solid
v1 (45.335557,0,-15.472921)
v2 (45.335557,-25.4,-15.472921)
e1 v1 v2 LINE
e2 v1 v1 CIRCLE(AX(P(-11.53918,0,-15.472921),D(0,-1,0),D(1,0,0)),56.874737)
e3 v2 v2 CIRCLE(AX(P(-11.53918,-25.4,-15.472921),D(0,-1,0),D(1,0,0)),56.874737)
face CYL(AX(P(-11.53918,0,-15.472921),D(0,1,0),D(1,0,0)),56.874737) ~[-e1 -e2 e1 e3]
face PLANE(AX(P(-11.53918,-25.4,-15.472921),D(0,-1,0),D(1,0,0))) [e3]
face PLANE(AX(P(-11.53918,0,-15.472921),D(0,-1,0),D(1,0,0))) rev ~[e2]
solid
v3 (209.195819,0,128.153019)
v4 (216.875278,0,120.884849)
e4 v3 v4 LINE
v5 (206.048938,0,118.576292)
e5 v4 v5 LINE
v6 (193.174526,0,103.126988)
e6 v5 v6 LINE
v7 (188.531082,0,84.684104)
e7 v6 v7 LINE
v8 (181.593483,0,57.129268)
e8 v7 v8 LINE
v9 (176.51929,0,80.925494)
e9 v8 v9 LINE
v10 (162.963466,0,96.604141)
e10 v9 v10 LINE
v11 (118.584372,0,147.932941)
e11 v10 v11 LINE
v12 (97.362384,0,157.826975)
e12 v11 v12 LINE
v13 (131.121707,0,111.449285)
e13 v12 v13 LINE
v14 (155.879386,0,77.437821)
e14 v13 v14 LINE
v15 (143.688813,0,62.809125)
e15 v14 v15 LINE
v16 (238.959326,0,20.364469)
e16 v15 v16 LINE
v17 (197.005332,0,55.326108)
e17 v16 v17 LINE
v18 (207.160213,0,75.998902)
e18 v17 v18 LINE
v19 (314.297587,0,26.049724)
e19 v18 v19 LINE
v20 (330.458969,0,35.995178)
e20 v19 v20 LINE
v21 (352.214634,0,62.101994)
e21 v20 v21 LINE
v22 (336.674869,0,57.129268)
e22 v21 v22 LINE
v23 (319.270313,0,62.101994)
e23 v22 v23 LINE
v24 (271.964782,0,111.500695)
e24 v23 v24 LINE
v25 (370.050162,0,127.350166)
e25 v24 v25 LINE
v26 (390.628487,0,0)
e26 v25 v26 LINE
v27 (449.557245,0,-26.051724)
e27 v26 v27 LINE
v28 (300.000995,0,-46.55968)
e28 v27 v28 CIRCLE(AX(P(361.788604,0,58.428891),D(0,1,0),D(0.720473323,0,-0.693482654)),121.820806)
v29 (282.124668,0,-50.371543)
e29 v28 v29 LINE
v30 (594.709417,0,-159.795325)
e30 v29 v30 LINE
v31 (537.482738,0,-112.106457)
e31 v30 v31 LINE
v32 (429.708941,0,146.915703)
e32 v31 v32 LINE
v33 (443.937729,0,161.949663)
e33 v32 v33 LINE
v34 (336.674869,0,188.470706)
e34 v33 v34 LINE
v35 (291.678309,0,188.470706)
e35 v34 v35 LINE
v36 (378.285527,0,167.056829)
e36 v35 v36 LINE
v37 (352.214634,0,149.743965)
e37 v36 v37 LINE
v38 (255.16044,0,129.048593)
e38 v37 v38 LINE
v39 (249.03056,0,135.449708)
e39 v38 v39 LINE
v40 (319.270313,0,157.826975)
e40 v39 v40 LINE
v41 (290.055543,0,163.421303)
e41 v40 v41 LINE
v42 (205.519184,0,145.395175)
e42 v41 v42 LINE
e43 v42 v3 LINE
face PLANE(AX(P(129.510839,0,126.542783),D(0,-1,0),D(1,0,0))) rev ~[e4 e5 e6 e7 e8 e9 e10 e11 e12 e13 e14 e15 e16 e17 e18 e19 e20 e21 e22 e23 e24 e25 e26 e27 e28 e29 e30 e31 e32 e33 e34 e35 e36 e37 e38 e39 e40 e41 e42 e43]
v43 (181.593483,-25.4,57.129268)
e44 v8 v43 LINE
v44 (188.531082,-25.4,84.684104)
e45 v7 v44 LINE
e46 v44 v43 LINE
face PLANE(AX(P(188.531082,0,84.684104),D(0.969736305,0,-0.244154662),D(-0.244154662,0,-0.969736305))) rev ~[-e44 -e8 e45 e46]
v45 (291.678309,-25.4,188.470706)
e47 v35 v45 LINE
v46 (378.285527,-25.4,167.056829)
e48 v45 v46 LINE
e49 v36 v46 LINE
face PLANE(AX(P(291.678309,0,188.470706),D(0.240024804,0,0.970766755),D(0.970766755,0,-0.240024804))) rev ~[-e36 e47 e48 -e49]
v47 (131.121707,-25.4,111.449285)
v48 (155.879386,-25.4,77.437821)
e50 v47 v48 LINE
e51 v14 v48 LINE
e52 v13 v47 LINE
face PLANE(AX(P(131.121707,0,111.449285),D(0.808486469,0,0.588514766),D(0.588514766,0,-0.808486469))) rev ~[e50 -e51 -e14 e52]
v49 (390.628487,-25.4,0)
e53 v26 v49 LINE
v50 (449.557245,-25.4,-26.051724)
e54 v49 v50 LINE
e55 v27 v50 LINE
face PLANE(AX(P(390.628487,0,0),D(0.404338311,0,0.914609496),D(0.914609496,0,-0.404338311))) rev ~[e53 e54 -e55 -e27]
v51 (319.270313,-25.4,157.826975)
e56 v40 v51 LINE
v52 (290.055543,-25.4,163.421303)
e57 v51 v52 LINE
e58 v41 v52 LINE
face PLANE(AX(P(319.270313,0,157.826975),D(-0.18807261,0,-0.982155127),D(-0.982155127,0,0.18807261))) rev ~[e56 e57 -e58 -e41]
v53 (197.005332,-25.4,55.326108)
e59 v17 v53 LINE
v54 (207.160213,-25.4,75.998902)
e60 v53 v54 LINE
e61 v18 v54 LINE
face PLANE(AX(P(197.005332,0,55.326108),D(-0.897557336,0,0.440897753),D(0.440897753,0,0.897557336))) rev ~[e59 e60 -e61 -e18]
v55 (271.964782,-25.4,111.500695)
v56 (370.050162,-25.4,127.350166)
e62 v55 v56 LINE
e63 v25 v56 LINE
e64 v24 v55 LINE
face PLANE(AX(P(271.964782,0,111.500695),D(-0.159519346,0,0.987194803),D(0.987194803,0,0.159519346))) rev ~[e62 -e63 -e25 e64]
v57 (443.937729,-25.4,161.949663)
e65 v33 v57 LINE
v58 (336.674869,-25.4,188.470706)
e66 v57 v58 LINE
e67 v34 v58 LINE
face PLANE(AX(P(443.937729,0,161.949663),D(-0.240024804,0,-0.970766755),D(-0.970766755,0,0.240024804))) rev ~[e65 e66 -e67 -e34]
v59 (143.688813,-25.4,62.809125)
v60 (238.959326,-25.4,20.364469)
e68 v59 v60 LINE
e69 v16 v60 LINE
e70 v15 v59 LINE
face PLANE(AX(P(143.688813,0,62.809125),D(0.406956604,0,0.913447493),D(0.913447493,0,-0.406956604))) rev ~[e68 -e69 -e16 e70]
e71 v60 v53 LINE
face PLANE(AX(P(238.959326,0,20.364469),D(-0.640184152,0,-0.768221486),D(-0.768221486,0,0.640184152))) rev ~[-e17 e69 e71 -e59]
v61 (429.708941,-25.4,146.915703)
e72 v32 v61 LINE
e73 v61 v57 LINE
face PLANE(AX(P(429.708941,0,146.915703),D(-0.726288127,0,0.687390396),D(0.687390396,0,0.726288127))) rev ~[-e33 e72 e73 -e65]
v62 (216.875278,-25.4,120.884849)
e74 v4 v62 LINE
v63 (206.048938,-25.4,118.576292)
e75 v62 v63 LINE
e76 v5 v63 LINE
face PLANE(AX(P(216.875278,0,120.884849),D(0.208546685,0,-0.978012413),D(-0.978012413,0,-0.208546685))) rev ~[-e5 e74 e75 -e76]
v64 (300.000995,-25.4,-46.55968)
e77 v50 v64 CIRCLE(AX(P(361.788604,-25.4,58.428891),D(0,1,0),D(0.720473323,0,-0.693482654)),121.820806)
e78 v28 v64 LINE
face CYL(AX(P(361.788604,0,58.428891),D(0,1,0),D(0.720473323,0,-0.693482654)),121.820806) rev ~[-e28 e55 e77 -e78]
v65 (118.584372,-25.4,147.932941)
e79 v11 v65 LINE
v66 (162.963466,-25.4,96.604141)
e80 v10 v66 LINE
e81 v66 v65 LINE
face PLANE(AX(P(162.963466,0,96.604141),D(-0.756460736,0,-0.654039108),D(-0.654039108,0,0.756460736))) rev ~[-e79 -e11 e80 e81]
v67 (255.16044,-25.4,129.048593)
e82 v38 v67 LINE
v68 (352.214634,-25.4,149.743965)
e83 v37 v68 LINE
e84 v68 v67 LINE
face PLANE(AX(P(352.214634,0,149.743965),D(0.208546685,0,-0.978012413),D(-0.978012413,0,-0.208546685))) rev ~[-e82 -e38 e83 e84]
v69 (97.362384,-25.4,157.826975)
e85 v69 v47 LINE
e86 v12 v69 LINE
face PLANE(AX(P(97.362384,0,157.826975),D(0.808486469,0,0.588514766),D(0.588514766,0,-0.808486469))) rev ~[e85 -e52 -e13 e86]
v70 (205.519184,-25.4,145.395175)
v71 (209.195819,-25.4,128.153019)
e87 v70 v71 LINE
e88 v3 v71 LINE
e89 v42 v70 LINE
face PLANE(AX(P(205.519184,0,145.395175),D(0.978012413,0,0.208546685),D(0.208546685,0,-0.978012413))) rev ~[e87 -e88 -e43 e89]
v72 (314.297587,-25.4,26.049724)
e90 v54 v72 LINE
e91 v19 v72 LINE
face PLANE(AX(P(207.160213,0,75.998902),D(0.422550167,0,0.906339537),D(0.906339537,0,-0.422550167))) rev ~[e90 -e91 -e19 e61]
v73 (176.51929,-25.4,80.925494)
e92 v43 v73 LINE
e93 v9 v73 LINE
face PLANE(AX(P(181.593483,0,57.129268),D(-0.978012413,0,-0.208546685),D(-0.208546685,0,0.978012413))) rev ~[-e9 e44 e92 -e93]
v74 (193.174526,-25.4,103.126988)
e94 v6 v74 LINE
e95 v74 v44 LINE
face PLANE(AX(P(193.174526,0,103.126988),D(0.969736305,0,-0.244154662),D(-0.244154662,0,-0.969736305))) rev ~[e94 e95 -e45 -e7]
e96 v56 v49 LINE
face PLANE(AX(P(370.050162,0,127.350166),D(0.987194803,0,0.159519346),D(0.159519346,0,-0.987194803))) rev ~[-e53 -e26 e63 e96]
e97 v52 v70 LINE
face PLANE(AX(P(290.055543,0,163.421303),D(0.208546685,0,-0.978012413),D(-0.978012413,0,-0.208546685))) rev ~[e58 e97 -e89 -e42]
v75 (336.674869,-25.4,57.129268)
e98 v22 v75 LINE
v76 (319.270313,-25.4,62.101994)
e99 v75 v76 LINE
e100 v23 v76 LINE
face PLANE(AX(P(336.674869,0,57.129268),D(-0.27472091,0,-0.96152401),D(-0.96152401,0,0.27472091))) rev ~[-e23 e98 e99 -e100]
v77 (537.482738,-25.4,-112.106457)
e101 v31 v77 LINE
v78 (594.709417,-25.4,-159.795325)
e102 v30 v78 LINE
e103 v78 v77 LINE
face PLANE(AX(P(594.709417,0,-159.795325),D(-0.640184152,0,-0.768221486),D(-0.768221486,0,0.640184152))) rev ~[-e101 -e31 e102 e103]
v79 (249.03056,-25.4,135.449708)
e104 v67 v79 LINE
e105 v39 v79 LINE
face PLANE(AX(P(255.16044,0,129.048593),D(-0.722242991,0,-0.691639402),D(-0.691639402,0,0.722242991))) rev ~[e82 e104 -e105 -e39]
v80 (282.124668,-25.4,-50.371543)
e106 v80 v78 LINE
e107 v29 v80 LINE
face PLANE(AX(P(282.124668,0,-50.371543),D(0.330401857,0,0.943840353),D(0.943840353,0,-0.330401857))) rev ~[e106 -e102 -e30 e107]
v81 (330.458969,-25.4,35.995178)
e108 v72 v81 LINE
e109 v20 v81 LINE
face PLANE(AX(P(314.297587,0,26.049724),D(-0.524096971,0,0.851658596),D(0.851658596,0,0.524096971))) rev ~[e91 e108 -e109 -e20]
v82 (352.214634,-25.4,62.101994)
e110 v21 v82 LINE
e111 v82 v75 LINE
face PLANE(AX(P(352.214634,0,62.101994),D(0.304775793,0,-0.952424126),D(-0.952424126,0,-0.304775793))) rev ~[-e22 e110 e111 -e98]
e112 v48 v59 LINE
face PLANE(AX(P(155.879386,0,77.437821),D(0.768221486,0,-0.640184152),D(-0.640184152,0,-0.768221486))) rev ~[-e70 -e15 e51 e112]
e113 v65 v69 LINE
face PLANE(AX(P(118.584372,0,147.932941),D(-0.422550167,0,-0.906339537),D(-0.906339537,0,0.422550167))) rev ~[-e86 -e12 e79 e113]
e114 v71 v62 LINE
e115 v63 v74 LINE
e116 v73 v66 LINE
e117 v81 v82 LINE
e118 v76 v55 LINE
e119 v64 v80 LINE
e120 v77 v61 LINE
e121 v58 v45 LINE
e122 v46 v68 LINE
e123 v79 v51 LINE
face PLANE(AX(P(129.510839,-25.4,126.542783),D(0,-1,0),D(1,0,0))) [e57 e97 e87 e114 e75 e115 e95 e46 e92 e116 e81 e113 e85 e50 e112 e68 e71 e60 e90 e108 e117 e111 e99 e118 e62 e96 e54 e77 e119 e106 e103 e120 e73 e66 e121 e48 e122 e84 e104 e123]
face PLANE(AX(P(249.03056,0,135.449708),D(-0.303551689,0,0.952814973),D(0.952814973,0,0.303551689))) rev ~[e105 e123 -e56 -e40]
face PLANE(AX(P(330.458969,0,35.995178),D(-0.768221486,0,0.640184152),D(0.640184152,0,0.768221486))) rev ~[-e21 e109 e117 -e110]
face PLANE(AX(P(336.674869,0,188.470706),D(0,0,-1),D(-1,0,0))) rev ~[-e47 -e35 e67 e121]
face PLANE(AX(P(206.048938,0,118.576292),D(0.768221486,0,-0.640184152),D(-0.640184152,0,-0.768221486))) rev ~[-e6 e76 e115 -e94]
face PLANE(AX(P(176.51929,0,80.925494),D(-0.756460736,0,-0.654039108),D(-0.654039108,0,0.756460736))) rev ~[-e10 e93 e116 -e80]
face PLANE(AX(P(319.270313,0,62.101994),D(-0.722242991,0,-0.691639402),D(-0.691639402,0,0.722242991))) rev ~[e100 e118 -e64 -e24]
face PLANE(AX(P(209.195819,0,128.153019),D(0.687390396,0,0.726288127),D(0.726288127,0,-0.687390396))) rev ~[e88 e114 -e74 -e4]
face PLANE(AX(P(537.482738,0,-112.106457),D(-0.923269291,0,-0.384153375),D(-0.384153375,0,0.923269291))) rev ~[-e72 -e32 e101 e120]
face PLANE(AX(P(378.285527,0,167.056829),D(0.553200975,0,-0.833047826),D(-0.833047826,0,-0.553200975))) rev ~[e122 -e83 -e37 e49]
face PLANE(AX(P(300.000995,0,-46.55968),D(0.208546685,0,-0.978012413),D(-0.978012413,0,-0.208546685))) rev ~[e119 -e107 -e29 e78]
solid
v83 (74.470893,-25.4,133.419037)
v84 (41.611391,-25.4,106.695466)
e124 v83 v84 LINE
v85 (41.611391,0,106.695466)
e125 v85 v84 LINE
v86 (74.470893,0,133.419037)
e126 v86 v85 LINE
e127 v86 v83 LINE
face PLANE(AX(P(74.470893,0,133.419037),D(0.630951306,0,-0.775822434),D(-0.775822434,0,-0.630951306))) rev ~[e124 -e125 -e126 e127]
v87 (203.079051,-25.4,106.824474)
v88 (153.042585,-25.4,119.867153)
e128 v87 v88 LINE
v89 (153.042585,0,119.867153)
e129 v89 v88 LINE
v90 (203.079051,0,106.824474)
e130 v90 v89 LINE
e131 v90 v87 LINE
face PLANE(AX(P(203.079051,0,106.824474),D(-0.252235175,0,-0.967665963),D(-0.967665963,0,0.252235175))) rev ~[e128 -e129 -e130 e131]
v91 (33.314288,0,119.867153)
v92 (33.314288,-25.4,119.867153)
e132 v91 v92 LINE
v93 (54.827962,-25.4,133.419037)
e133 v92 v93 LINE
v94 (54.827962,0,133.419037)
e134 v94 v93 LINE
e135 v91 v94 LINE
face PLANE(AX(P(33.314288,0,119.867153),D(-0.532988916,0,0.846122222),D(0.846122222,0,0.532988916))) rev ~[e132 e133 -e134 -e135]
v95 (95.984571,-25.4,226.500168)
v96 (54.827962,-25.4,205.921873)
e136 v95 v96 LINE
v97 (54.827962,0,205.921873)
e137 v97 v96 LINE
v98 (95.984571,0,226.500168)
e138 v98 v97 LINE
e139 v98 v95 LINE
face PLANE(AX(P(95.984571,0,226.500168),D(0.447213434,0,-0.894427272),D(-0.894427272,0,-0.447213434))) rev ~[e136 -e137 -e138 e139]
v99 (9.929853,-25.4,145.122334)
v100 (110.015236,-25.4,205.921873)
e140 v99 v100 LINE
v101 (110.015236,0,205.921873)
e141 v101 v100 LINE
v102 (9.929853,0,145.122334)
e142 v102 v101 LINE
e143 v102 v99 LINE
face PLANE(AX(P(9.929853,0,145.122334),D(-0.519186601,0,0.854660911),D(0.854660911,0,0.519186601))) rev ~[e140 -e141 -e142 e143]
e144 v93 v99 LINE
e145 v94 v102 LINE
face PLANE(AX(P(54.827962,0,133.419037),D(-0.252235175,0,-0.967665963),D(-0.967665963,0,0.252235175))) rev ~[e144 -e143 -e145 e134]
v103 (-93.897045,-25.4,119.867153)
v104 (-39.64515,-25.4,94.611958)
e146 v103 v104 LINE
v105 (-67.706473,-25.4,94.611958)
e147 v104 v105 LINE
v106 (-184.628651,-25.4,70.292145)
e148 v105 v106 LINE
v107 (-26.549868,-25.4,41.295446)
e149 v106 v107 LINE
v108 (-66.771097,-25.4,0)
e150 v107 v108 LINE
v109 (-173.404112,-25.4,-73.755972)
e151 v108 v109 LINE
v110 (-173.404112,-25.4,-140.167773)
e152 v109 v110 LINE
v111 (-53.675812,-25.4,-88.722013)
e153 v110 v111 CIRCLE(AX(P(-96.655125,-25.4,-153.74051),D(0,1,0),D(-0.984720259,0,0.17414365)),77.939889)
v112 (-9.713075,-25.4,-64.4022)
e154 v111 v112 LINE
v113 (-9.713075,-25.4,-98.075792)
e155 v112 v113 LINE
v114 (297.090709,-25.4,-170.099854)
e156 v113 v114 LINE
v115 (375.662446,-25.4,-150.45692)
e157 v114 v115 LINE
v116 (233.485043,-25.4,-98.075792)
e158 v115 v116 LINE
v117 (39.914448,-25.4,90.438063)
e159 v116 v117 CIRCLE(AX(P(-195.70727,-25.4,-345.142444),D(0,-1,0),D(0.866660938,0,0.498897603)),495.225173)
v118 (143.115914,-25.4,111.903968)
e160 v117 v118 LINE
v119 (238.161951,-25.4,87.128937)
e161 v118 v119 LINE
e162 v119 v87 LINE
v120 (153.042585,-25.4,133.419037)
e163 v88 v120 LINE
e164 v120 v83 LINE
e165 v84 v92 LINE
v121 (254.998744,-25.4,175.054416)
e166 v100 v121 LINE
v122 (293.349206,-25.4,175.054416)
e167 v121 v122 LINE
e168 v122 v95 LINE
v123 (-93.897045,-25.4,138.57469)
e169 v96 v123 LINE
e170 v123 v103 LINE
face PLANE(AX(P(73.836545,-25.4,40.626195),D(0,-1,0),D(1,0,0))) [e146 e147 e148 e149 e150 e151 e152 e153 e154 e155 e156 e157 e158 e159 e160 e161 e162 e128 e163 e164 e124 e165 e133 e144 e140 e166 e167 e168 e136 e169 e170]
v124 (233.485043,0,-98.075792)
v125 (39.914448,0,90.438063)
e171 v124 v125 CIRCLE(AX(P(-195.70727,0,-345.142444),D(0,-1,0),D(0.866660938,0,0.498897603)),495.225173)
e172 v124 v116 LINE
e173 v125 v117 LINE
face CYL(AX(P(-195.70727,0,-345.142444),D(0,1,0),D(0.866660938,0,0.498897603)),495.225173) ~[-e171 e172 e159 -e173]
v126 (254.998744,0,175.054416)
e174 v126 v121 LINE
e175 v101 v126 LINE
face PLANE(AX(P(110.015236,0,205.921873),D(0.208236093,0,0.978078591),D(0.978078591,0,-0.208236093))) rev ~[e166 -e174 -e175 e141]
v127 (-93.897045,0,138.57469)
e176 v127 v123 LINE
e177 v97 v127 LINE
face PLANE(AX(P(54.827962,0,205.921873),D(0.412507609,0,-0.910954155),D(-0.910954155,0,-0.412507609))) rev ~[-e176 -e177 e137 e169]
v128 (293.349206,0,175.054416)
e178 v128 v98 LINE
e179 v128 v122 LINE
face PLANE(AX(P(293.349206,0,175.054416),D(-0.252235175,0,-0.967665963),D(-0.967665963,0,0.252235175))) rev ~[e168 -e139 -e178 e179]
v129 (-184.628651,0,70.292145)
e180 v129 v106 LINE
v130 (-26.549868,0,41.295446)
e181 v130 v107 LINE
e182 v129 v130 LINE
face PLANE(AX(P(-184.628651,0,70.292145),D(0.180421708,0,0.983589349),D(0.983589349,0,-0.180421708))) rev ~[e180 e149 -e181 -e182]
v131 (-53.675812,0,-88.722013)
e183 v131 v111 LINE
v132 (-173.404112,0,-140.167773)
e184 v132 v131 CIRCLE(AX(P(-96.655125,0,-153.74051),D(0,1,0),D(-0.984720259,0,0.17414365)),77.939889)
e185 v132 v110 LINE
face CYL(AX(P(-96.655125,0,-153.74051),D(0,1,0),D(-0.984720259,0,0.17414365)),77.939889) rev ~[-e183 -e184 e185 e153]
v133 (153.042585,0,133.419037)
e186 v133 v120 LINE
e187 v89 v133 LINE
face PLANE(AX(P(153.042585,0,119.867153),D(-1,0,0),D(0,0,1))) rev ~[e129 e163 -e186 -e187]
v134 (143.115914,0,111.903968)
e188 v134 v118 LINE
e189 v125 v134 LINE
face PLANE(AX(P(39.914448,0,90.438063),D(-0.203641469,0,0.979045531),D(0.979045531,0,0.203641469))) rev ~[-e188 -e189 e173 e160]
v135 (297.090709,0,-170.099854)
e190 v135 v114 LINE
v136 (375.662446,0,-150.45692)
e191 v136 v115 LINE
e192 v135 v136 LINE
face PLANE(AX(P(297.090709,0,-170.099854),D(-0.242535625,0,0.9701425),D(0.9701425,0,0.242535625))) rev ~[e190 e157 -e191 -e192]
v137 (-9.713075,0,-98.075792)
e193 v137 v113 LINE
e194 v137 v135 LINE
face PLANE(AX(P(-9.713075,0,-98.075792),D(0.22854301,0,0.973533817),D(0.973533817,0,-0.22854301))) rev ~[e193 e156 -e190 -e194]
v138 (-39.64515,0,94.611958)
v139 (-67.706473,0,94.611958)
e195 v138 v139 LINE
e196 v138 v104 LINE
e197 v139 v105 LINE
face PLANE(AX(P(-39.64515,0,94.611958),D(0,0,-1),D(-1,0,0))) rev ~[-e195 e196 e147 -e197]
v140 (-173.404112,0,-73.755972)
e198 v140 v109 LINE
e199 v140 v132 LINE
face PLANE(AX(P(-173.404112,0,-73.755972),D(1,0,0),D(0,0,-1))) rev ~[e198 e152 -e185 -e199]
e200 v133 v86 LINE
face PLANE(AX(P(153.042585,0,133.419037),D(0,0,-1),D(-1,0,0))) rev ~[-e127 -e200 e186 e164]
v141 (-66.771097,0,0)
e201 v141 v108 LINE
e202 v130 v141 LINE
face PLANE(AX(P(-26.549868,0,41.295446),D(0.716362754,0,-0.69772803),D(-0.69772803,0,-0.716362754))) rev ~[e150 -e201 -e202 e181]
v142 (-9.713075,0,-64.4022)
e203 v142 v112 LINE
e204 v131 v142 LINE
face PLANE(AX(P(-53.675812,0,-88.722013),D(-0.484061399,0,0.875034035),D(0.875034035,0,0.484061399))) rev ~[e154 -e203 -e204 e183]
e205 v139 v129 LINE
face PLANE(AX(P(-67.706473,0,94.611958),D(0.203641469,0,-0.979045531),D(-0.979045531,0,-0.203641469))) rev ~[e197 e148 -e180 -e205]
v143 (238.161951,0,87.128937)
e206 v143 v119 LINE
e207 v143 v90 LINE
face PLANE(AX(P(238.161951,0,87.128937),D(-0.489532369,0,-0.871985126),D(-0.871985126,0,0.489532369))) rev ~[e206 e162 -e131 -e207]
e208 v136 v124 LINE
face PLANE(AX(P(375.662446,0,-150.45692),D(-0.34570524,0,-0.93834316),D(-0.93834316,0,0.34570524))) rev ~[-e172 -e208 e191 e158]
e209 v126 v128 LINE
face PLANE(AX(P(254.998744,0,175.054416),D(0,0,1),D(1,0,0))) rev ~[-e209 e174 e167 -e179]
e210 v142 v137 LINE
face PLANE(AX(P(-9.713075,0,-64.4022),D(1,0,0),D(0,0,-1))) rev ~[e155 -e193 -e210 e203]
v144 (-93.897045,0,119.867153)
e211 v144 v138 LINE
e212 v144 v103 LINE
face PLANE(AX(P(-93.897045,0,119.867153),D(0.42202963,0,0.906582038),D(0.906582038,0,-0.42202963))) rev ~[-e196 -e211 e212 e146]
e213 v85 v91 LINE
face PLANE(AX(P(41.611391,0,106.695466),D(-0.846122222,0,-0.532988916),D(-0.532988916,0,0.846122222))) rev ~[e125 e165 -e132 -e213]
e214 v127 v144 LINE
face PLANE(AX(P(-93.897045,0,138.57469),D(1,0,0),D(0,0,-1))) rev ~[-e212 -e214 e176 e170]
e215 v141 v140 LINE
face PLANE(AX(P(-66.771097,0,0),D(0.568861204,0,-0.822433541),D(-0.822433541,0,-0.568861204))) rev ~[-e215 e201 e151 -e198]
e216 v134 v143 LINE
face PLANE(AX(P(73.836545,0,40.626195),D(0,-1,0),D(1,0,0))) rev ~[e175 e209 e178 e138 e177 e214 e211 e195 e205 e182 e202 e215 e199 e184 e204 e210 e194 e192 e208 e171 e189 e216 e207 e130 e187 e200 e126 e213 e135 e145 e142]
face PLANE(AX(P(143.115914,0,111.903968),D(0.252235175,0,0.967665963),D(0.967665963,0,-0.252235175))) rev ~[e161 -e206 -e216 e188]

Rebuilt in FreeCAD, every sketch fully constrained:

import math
import FreeCAD as App
import Part
import Sketcher
from FreeCAD import Vector
Q = App.Units.Quantity

doc = App.newDocument("Part")
params = doc.addObject("Spreadsheet::Sheet", "Params")
for row, (alias, value) in enumerate([
    ("pad1_length", "1 in"),
    ("pad2_length", "1 in"),
    ("pad3_length", "1 in"),
], start=1):
    params.set(f"A{row}", alias)
    params.set(f"B{row}", "=" + value)
    params.setAlias(f"B{row}", alias)

body = doc.addObject("PartDesign::Body", "Body")

# Sketch on XZ plane
sketch1 = body.newObject("Sketcher::SketchObject", "Sketch")
sketch1.AttachmentSupport = (doc.getObject("XZ_Plane"), [""])
sketch1.MapMode = "FlatFace"
sketch1.addGeometry(Part.LineSegment(Vector(97, 158, 0), Vector(131, 111, 0)), False)
sketch1.addGeometry(Part.LineSegment(Vector(131, 111, 0), Vector(156, 77, 0)), False)
sketch1.addGeometry(Part.LineSegment(Vector(156, 77, 0), Vector(144, 63, 0)), False)
sketch1.addGeometry(Part.LineSegment(Vector(144, 63, 0), Vector(239, 20, 0)), False)
sketch1.addGeometry(Part.LineSegment(Vector(239, 20, 0), Vector(197, 55, 0)), False)
sketch1.addGeometry(Part.LineSegment(Vector(197, 55, 0), Vector(207, 76, 0)), False)
sketch1.addGeometry(Part.LineSegment(Vector(207, 76, 0), Vector(314, 26, 0)), False)
sketch1.addGeometry(Part.LineSegment(Vector(314, 26, 0), Vector(330, 36, 0)), False)
sketch1.addGeometry(Part.LineSegment(Vector(330, 36, 0), Vector(352, 62, 0)), False)
sketch1.addGeometry(Part.LineSegment(Vector(352, 62, 0), Vector(337, 57, 0)), False)
sketch1.addGeometry(Part.LineSegment(Vector(337, 57, 0), Vector(319, 62, 0)), False)
sketch1.addGeometry(Part.LineSegment(Vector(319, 62, 0), Vector(272, 112, 0)), False)
sketch1.addGeometry(Part.LineSegment(Vector(272, 112, 0), Vector(370, 127, 0)), False)
sketch1.addGeometry(Part.LineSegment(Vector(370, 127, 0), Vector(391, 0, 0)), False)
sketch1.addGeometry(Part.LineSegment(Vector(391, 0, 0), Vector(450, -26, 0)), False)
sketch1.addGeometry(Part.ArcOfCircle(Part.Circle(Vector(362, 58, 0), Vector(0, 0, 1), 122), math.radians(-120), math.radians(-44)), False)
sketch1.addGeometry(Part.LineSegment(Vector(300, -47, 0), Vector(282, -50, 0)), False)
sketch1.addGeometry(Part.LineSegment(Vector(282, -50, 0), Vector(595, -160, 0)), False)
sketch1.addGeometry(Part.LineSegment(Vector(595, -160, 0), Vector(537, -112, 0)), False)
sketch1.addGeometry(Part.LineSegment(Vector(537, -112, 0), Vector(430, 147, 0)), False)
sketch1.addGeometry(Part.LineSegment(Vector(430, 147, 0), Vector(444, 162, 0)), False)
sketch1.addGeometry(Part.LineSegment(Vector(444, 162, 0), Vector(337, 188, 0)), False)
sketch1.addGeometry(Part.LineSegment(Vector(337, 188, 0), Vector(292, 188, 0)), False)
sketch1.addGeometry(Part.LineSegment(Vector(292, 188, 0), Vector(378, 167, 0)), False)
sketch1.addGeometry(Part.LineSegment(Vector(378, 167, 0), Vector(352, 150, 0)), False)
sketch1.addGeometry(Part.LineSegment(Vector(352, 150, 0), Vector(255, 129, 0)), False)
sketch1.addGeometry(Part.LineSegment(Vector(255, 129, 0), Vector(249, 135, 0)), False)
sketch1.addGeometry(Part.LineSegment(Vector(249, 135, 0), Vector(319, 158, 0)), False)
sketch1.addGeometry(Part.LineSegment(Vector(319, 158, 0), Vector(290, 163, 0)), False)
sketch1.addGeometry(Part.LineSegment(Vector(290, 163, 0), Vector(206, 145, 0)), False)
sketch1.addGeometry(Part.LineSegment(Vector(206, 145, 0), Vector(209, 128, 0)), False)
sketch1.addGeometry(Part.LineSegment(Vector(209, 128, 0), Vector(217, 121, 0)), False)
sketch1.addGeometry(Part.LineSegment(Vector(217, 121, 0), Vector(206, 119, 0)), False)
sketch1.addGeometry(Part.LineSegment(Vector(206, 119, 0), Vector(193, 103, 0)), False)
sketch1.addGeometry(Part.LineSegment(Vector(193, 103, 0), Vector(189, 85, 0)), False)
sketch1.addGeometry(Part.LineSegment(Vector(189, 85, 0), Vector(182, 57, 0)), False)
sketch1.addGeometry(Part.LineSegment(Vector(182, 57, 0), Vector(177, 81, 0)), False)
sketch1.addGeometry(Part.LineSegment(Vector(177, 81, 0), Vector(163, 97, 0)), False)
sketch1.addGeometry(Part.LineSegment(Vector(163, 97, 0), Vector(119, 148, 0)), False)
sketch1.addGeometry(Part.LineSegment(Vector(119, 148, 0), Vector(97, 158, 0)), False)
sketch1.addConstraint(Sketcher.Constraint("Coincident", 0, 2, 1, 1))
sketch1.addConstraint(Sketcher.Constraint("Coincident", 1, 2, 2, 1))
sketch1.addConstraint(Sketcher.Constraint("Coincident", 2, 2, 3, 1))
sketch1.addConstraint(Sketcher.Constraint("Coincident", 3, 2, 4, 1))
sketch1.addConstraint(Sketcher.Constraint("Coincident", 4, 2, 5, 1))
sketch1.addConstraint(Sketcher.Constraint("Coincident", 5, 2, 6, 1))
sketch1.addConstraint(Sketcher.Constraint("Coincident", 6, 2, 7, 1))
sketch1.addConstraint(Sketcher.Constraint("Coincident", 7, 2, 8, 1))
sketch1.addConstraint(Sketcher.Constraint("Coincident", 8, 2, 9, 1))
sketch1.addConstraint(Sketcher.Constraint("Coincident", 9, 2, 10, 1))
sketch1.addConstraint(Sketcher.Constraint("Coincident", 10, 2, 11, 1))
sketch1.addConstraint(Sketcher.Constraint("Coincident", 11, 2, 12, 1))
sketch1.addConstraint(Sketcher.Constraint("Coincident", 12, 2, 13, 1))
sketch1.addConstraint(Sketcher.Constraint("Coincident", 13, 2, 14, 1))
sketch1.addConstraint(Sketcher.Constraint("Coincident", 14, 2, 15, 2))
sketch1.addConstraint(Sketcher.Constraint("Coincident", 15, 1, 16, 1))
sketch1.addConstraint(Sketcher.Constraint("Coincident", 16, 2, 17, 1))
sketch1.addConstraint(Sketcher.Constraint("Coincident", 17, 2, 18, 1))
sketch1.addConstraint(Sketcher.Constraint("Coincident", 18, 2, 19, 1))
sketch1.addConstraint(Sketcher.Constraint("Coincident", 19, 2, 20, 1))
sketch1.addConstraint(Sketcher.Constraint("Coincident", 20, 2, 21, 1))
sketch1.addConstraint(Sketcher.Constraint("Coincident", 21, 2, 22, 1))
sketch1.addConstraint(Sketcher.Constraint("Coincident", 22, 2, 23, 1))
sketch1.addConstraint(Sketcher.Constraint("Coincident", 23, 2, 24, 1))
sketch1.addConstraint(Sketcher.Constraint("Coincident", 24, 2, 25, 1))
sketch1.addConstraint(Sketcher.Constraint("Coincident", 25, 2, 26, 1))
sketch1.addConstraint(Sketcher.Constraint("Coincident", 26, 2, 27, 1))
sketch1.addConstraint(Sketcher.Constraint("Coincident", 27, 2, 28, 1))
sketch1.addConstraint(Sketcher.Constraint("Coincident", 28, 2, 29, 1))
sketch1.addConstraint(Sketcher.Constraint("Coincident", 29, 2, 30, 1))
sketch1.addConstraint(Sketcher.Constraint("Coincident", 30, 2, 31, 1))
sketch1.addConstraint(Sketcher.Constraint("Coincident", 31, 2, 32, 1))
sketch1.addConstraint(Sketcher.Constraint("Coincident", 32, 2, 33, 1))
sketch1.addConstraint(Sketcher.Constraint("Coincident", 33, 2, 34, 1))
sketch1.addConstraint(Sketcher.Constraint("Coincident", 34, 2, 35, 1))
sketch1.addConstraint(Sketcher.Constraint("Coincident", 35, 2, 36, 1))
sketch1.addConstraint(Sketcher.Constraint("Coincident", 36, 2, 37, 1))
sketch1.addConstraint(Sketcher.Constraint("Coincident", 37, 2, 38, 1))
sketch1.addConstraint(Sketcher.Constraint("Coincident", 38, 2, 39, 1))
sketch1.addConstraint(Sketcher.Constraint("Coincident", 39, 2, 0, 1))
sketch1.addConstraint(Sketcher.Constraint("Horizontal", 22))
sketch1.addConstraint(Sketcher.Constraint("PointOnObject", 13, 2, -1))
sketch1.addConstraint(Sketcher.Constraint("Parallel", 0, 1))
sketch1.addConstraint(Sketcher.Constraint("Perpendicular", 2, 4))
sketch1.addConstraint(Sketcher.Constraint("Perpendicular", 4, 8))
sketch1.addConstraint(Sketcher.Constraint("Perpendicular", 12, 13))
sketch1.addConstraint(Sketcher.Constraint("Perpendicular", 8, 18))
sketch1.addConstraint(Sketcher.Constraint("Parallel", 21, 23))
sketch1.addConstraint(Sketcher.Constraint("Parallel", 16, 25))
sketch1.addConstraint(Sketcher.Constraint("Parallel", 11, 26))
sketch1.addConstraint(Sketcher.Constraint("Parallel", 25, 29))
sketch1.addConstraint(Sketcher.Constraint("Perpendicular", 29, 30))
sketch1.addConstraint(Sketcher.Constraint("Perpendicular", 20, 31))
sketch1.addConstraint(Sketcher.Constraint("Perpendicular", 30, 32))
sketch1.addConstraint(Sketcher.Constraint("Perpendicular", 18, 33))
sketch1.addConstraint(Sketcher.Constraint("Parallel", 34, 35))
sketch1.addConstraint(Sketcher.Constraint("Perpendicular", 32, 36))
sketch1.addConstraint(Sketcher.Constraint("Parallel", 37, 38))
sketch1.addConstraint(Sketcher.Constraint("Parallel", 6, 39))
sketch1.addConstraint(Sketcher.Constraint("Horizontal", 8, 2, 10, 2))
sketch1.addConstraint(Sketcher.Constraint("Horizontal", 9, 2, 35, 2))
sketch1.addConstraint(Sketcher.Constraint("Horizontal", 27, 2, 39, 2))
sketch1.addConstraint(Sketcher.Constraint("Vertical", 9, 2, 21, 2))
sketch1.addConstraint(Sketcher.Constraint("Vertical", 8, 2, 24, 2))
sketch1.addConstraint(Sketcher.Constraint("Vertical", 10, 2, 27, 2))
sketch1.addConstraint(Sketcher.Constraint("DistanceY", -1, 1, 2, 2, Q("2.4728002 in")))
sketch1.addConstraint(Sketcher.Constraint("Radius", 15, Q("121.820806 mm")))
sketch1.addConstraint(Sketcher.Constraint("DistanceX", 1, 2, 34, 2, Q("1.2854999 in")))
sketch1.addConstraint(Sketcher.Constraint("DistanceX", 22, 2, 22, 1, Q("44.99656 mm")))
sketch1.addConstraint(Sketcher.Constraint("DistanceX", 2, 2, 5, 2, Q("63.4714 mm")))
sketch1.addConstraint(Sketcher.Constraint("DistanceX", 1, 2, 6, 2, Q("158.418201 mm")))
sketch1.addConstraint(Sketcher.Constraint("DistanceX", 7, 2, 9, 2, Q("6.2159 mm")))
sketch1.addConstraint(Sketcher.Constraint("DistanceY", 3, 2, 9, 2, Q("36.764799 mm")))
sketch1.addConstraint(Sketcher.Constraint("DistanceY", 10, 2, 11, 2, Q("49.398701 mm")))
sketch1.addConstraint(Sketcher.Constraint("DistanceY", 9, 2, 12, 2, Q("70.220899 mm")))
sketch1.addConstraint(Sketcher.Constraint("DistanceX", 6, 2, 13, 2, Q("76.3309 mm")))
sketch1.addConstraint(Sketcher.Constraint("DistanceX", 16, 2, 7, 2, Q("48.334301 mm")))
sketch1.addConstraint(Sketcher.Constraint("DistanceY", 17, 2, 14, 2, Q("133.743601 mm")))
sketch1.addConstraint(Sketcher.Constraint("DistanceX", 23, 2, 20, 2, Q("65.652202 mm")))
sketch1.addConstraint(Sketcher.Constraint("DistanceY", 12, 2, 24, 2, Q("22.393799 mm")))
sketch1.addConstraint(Sketcher.Constraint("DistanceY", 11, 2, 25, 2, Q("17.547898 mm")))
sketch1.addConstraint(Sketcher.Constraint("DistanceY", 26, 2, 22, 2, Q("53.020999 mm")))
sketch1.addConstraint(Sketcher.Constraint("DistanceY", 4, 2, 26, 2, Q("80.1236 mm")))
sketch1.addConstraint(Sketcher.Constraint("DistanceX", 35, 2, 34, 2, Q("6.937599 mm")))
sketch1.addConstraint(Sketcher.Constraint("DistanceY", 37, 2, 38, 2, Q("51.3288 mm")))
sketch1.addConstraint(Sketcher.Constraint("DistanceX", 39, 2, 1, 2, Q("58.517001 mm")))
sketch1.addConstraint(Sketcher.Constraint("Distance", 2, Q("19.042291 mm")))
sketch1.addConstraint(Sketcher.Constraint("Distance", 6, Q("118.208871 mm")))
sketch1.addConstraint(Sketcher.Constraint("Distance", 8, Q("33.983449 mm")))
sketch1.addConstraint(Sketcher.Constraint("Distance", 10, Q("18.101011 mm")))
sketch1.addConstraint(Sketcher.Constraint("Distance", 14, Q("64.430512 mm")))
sketch1.addConstraint(Sketcher.Constraint("Distance", 16, Q("18.278221 mm")))
sketch1.addConstraint(Sketcher.Constraint("Distance", 17, Q("331.183921 mm")))
sketch1.addConstraint(Sketcher.Constraint("Distance", 18, Q("74.492422 mm")))
sketch1.addConstraint(Sketcher.Constraint("Distance", 20, Q("20.699719 mm")))
sketch1.addConstraint(Sketcher.Constraint("Distance", 23, Q("89.21527 mm")))
sketch1.addConstraint(Sketcher.Constraint("Distance", 25, Q("99.236158 mm")))
sketch1.addConstraint(Sketcher.Constraint("Distance", 30, Q("17.629792 mm")))
sketch1.addConstraint(Sketcher.Constraint("Distance", 31, Q("10.57357 mm")))
sketch1.addConstraint(Sketcher.Constraint("Distance", 33, Q("20.110482 mm")))
sketch1.addConstraint(Sketcher.Constraint("Distance", 34, Q("19.018452 mm")))
sketch1.addConstraint(Sketcher.Constraint("Distance", 36, Q("24.331211 mm")))
sketch1.addConstraint(Sketcher.Constraint("Distance", 37, Q("20.726319 mm")))
sketch1.addConstraint(Sketcher.Constraint("DistanceY", -1, 1, 15, 3, Q("58.428891 mm")))
sketch1.addConstraint(Sketcher.Constraint("DistanceY", -1, 1, 1, 2, Q("77.437821 mm")))
sketch1.addConstraint(Sketcher.Constraint("DistanceY", -1, 1, 3, 2, Q("20.364469 mm")))
sketch1.addConstraint(Sketcher.Constraint("DistanceX", -1, 1, 4, 2, Q("197.005332 mm")))
sketch1.addConstraint(Sketcher.Constraint("DistanceX", -1, 1, 7, 2, Q("330.458969 mm")))
sketch1.addConstraint(Sketcher.Constraint("DistanceX", -1, 1, 11, 2, Q("271.964782 mm")))
sketch1.addConstraint(Sketcher.Constraint("DistanceY", 15, 1, -1, 1, Q("46.55968 mm")))
sketch1.addConstraint(Sketcher.Constraint("DistanceX", -1, 1, 18, 2, Q("537.482738 mm")))
sketch1.addConstraint(Sketcher.Constraint("DistanceX", -1, 1, 19, 2, Q("429.708941 mm")))
sketch1.addConstraint(Sketcher.Constraint("DistanceX", -1, 1, 20, 2, Q("443.937729 mm")))
sketch1.addConstraint(Sketcher.Constraint("DistanceY", -1, 1, 23, 2, Q("167.056829 mm")))
sketch1.addConstraint(Sketcher.Constraint("DistanceX", -1, 1, 25, 2, Q("255.16044 mm")))
sketch1.addConstraint(Sketcher.Constraint("DistanceX", -1, 1, 30, 2, Q("209.195819 mm")))
sketch1.addConstraint(Sketcher.Constraint("DistanceY", -1, 1, 30, 2, Q("128.153019 mm")))
sketch1.addConstraint(Sketcher.Constraint("DistanceY", -1, 1, 37, 2, Q("96.604141 mm")))
sketch1.addConstraint(Sketcher.Constraint("DistanceX", 0, 2, 1, 2, Q("24.757679 mm")))
sketch1.addConstraint(Sketcher.Constraint("DistanceY", 5, 2, 1, 2, Q("1.438919 mm")))
sketch1.addConstraint(Sketcher.Constraint("DistanceX", 28, 2, 27, 2, Q("29.21477 mm")))
pad1 = body.newObject("PartDesign::Pad", "Pad")
pad1.Profile = sketch1
pad1.setExpression("Length", "Params.pad1_length")
body2 = doc.addObject("PartDesign::Body", "Body001")

# Sketch on XZ plane
sketch2 = body2.newObject("Sketcher::SketchObject", "Sketch001")
sketch2.AttachmentSupport = (doc.getObject("XZ_Plane001"), [""])
sketch2.MapMode = "FlatFace"
sketch2.addGeometry(Part.Circle(Vector(-12, -15, 0), Vector(0, 0, 1), 57), False)
sketch2.addConstraint(Sketcher.Constraint("Diameter", 0, Q("113.749473 mm")))
sketch2.addConstraint(Sketcher.Constraint("DistanceX", 0, 3, -1, 1, Q("11.53918 mm")))
sketch2.addConstraint(Sketcher.Constraint("DistanceY", 0, 3, -1, 1, Q("15.472921 mm")))
pad2 = body2.newObject("PartDesign::Pad", "Pad001")
pad2.Profile = sketch2
pad2.setExpression("Length", "Params.pad2_length")
body3 = doc.addObject("PartDesign::Body", "Body002")

# Sketch on XZ plane
sketch3 = body3.newObject("Sketcher::SketchObject", "Sketch002")
sketch3.AttachmentSupport = (doc.getObject("XZ_Plane002"), [""])
sketch3.MapMode = "FlatFace"
sketch3.addGeometry(Part.LineSegment(Vector(-185, 70, 0), Vector(-27, 41, 0)), False)
sketch3.addGeometry(Part.LineSegment(Vector(-27, 41, 0), Vector(-67, 0, 0)), False)
sketch3.addGeometry(Part.LineSegment(Vector(-67, 0, 0), Vector(-173, -74, 0)), False)
sketch3.addGeometry(Part.LineSegment(Vector(-173, -74, 0), Vector(-173, -140, 0)), False)
sketch3.addGeometry(Part.ArcOfCircle(Part.Circle(Vector(-97, -154, 0), Vector(0, 0, 1), 78), math.radians(57), math.radians(170)), False)
sketch3.addGeometry(Part.LineSegment(Vector(-54, -89, 0), Vector(-10, -64, 0)), False)
sketch3.addGeometry(Part.LineSegment(Vector(-10, -64, 0), Vector(-10, -98, 0)), False)
sketch3.addGeometry(Part.LineSegment(Vector(-10, -98, 0), Vector(297, -170, 0)), False)
sketch3.addGeometry(Part.LineSegment(Vector(297, -170, 0), Vector(376, -150, 0)), False)
sketch3.addGeometry(Part.LineSegment(Vector(376, -150, 0), Vector(233, -98, 0)), False)
sketch3.addGeometry(Part.ArcOfCircle(Part.Circle(Vector(-196, -345, 0), Vector(0, 0, 1), 495), math.radians(30), math.radians(62)), False)
sketch3.addGeometry(Part.LineSegment(Vector(40, 90, 0), Vector(143, 112, 0)), False)
sketch3.addGeometry(Part.LineSegment(Vector(143, 112, 0), Vector(238, 87, 0)), False)
sketch3.addGeometry(Part.LineSegment(Vector(238, 87, 0), Vector(203, 107, 0)), False)
sketch3.addGeometry(Part.LineSegment(Vector(203, 107, 0), Vector(153, 120, 0)), False)
sketch3.addGeometry(Part.LineSegment(Vector(153, 120, 0), Vector(153, 133, 0)), False)
sketch3.addGeometry(Part.LineSegment(Vector(153, 133, 0), Vector(74, 133, 0)), False)
sketch3.addGeometry(Part.LineSegment(Vector(74, 133, 0), Vector(42, 107, 0)), False)
sketch3.addGeometry(Part.LineSegment(Vector(42, 107, 0), Vector(33, 120, 0)), False)
sketch3.addGeometry(Part.LineSegment(Vector(33, 120, 0), Vector(55, 133, 0)), False)
sketch3.addGeometry(Part.LineSegment(Vector(55, 133, 0), Vector(10, 145, 0)), False)
sketch3.addGeometry(Part.LineSegment(Vector(10, 145, 0), Vector(110, 206, 0)), False)
sketch3.addGeometry(Part.LineSegment(Vector(110, 206, 0), Vector(255, 175, 0)), False)
sketch3.addGeometry(Part.LineSegment(Vector(255, 175, 0), Vector(293, 175, 0)), False)
sketch3.addGeometry(Part.LineSegment(Vector(293, 175, 0), Vector(96, 227, 0)), False)
sketch3.addGeometry(Part.LineSegment(Vector(96, 227, 0), Vector(55, 206, 0)), False)
sketch3.addGeometry(Part.LineSegment(Vector(55, 206, 0), Vector(-94, 139, 0)), False)
sketch3.addGeometry(Part.LineSegment(Vector(-94, 139, 0), Vector(-94, 120, 0)), False)
sketch3.addGeometry(Part.LineSegment(Vector(-94, 120, 0), Vector(-40, 95, 0)), False)
sketch3.addGeometry(Part.LineSegment(Vector(-40, 95, 0), Vector(-68, 95, 0)), False)
sketch3.addGeometry(Part.LineSegment(Vector(-68, 95, 0), Vector(-185, 70, 0)), False)
sketch3.addConstraint(Sketcher.Constraint("Coincident", 0, 2, 1, 1))
sketch3.addConstraint(Sketcher.Constraint("Coincident", 1, 2, 2, 1))
sketch3.addConstraint(Sketcher.Constraint("Coincident", 2, 2, 3, 1))
sketch3.addConstraint(Sketcher.Constraint("Coincident", 3, 2, 4, 2))
sketch3.addConstraint(Sketcher.Constraint("Coincident", 4, 1, 5, 1))
sketch3.addConstraint(Sketcher.Constraint("Coincident", 5, 2, 6, 1))
sketch3.addConstraint(Sketcher.Constraint("Coincident", 6, 2, 7, 1))
sketch3.addConstraint(Sketcher.Constraint("Coincident", 7, 2, 8, 1))
sketch3.addConstraint(Sketcher.Constraint("Coincident", 8, 2, 9, 1))
sketch3.addConstraint(Sketcher.Constraint("Coincident", 9, 2, 10, 1))
sketch3.addConstraint(Sketcher.Constraint("Coincident", 10, 2, 11, 1))
sketch3.addConstraint(Sketcher.Constraint("Coincident", 11, 2, 12, 1))
sketch3.addConstraint(Sketcher.Constraint("Coincident", 12, 2, 13, 1))
sketch3.addConstraint(Sketcher.Constraint("Coincident", 13, 2, 14, 1))
sketch3.addConstraint(Sketcher.Constraint("Coincident", 14, 2, 15, 1))
sketch3.addConstraint(Sketcher.Constraint("Coincident", 15, 2, 16, 1))
sketch3.addConstraint(Sketcher.Constraint("Coincident", 16, 2, 17, 1))
sketch3.addConstraint(Sketcher.Constraint("Coincident", 17, 2, 18, 1))
sketch3.addConstraint(Sketcher.Constraint("Coincident", 18, 2, 19, 1))
sketch3.addConstraint(Sketcher.Constraint("Coincident", 19, 2, 20, 1))
sketch3.addConstraint(Sketcher.Constraint("Coincident", 20, 2, 21, 1))
sketch3.addConstraint(Sketcher.Constraint("Coincident", 21, 2, 22, 1))
sketch3.addConstraint(Sketcher.Constraint("Coincident", 22, 2, 23, 1))
sketch3.addConstraint(Sketcher.Constraint("Coincident", 23, 2, 24, 1))
sketch3.addConstraint(Sketcher.Constraint("Coincident", 24, 2, 25, 1))
sketch3.addConstraint(Sketcher.Constraint("Coincident", 25, 2, 26, 1))
sketch3.addConstraint(Sketcher.Constraint("Coincident", 26, 2, 27, 1))
sketch3.addConstraint(Sketcher.Constraint("Coincident", 27, 2, 28, 1))
sketch3.addConstraint(Sketcher.Constraint("Coincident", 28, 2, 29, 1))
sketch3.addConstraint(Sketcher.Constraint("Coincident", 29, 2, 30, 1))
sketch3.addConstraint(Sketcher.Constraint("Coincident", 30, 2, 0, 1))
sketch3.addConstraint(Sketcher.Constraint("Vertical", 3))
sketch3.addConstraint(Sketcher.Constraint("Vertical", 6))
sketch3.addConstraint(Sketcher.Constraint("Vertical", 15))
sketch3.addConstraint(Sketcher.Constraint("Horizontal", 16))
sketch3.addConstraint(Sketcher.Constraint("Horizontal", 23))
sketch3.addConstraint(Sketcher.Constraint("Vertical", 27))
sketch3.addConstraint(Sketcher.Constraint("Horizontal", 29))
sketch3.addConstraint(Sketcher.Constraint("PointOnObject", 1, 2, -1))
sketch3.addConstraint(Sketcher.Constraint("Parallel", 12, 14))
sketch3.addConstraint(Sketcher.Constraint("Perpendicular", 18, 19))
sketch3.addConstraint(Sketcher.Constraint("Parallel", 14, 20))
sketch3.addConstraint(Sketcher.Constraint("Parallel", 20, 24))
sketch3.addConstraint(Sketcher.Constraint("Parallel", 11, 30))
sketch3.addConstraint(Sketcher.Constraint("Horizontal", 6, 2, 9, 2))
sketch3.addConstraint(Sketcher.Constraint("Horizontal", 14, 2, 18, 2))
sketch3.addConstraint(Sketcher.Constraint("Horizontal", 16, 2, 19, 2))
sketch3.addConstraint(Sketcher.Constraint("Horizontal", 21, 2, 25, 2))
sketch3.addConstraint(Sketcher.Constraint("Horizontal", 18, 2, 27, 2))
sketch3.addConstraint(Sketcher.Constraint("Vertical", 19, 2, 25, 2))
sketch3.addConstraint(Sketcher.Constraint("Angle", 11, Q("11.749983 deg")))
sketch3.addConstraint(Sketcher.Constraint("Radius", 4, Q("77.939889 mm")))
sketch3.addConstraint(Sketcher.Constraint("DistanceY", 3, 2, 3, 1, Q("66.411801 mm")))
sketch3.addConstraint(Sketcher.Constraint("Radius", 10, Q("495.225173 mm")))
sketch3.addConstraint(Sketcher.Constraint("Distance", 1, Q("57.645999 mm")))
sketch3.addConstraint(Sketcher.Constraint("Distance", 19, Q("25.426202 mm")))
sketch3.addConstraint(Sketcher.Constraint("DistanceY", 6, 2, 6, 1, Q("33.673592 mm")))
sketch3.addConstraint(Sketcher.Constraint("DistanceY", 5, 2, -1, 1, Q("64.4022 mm")))
sketch3.addConstraint(Sketcher.Constraint("DistanceX", 2, 2, 4, 1, Q("119.728301 mm")))
sketch3.addConstraint(Sketcher.Constraint("DistanceY", 7, 2, 0, 2, Q("211.395301 mm")))
sketch3.addConstraint(Sketcher.Constraint("DistanceX", 13, 2, 12, 2, Q("35.0829 mm")))
sketch3.addConstraint(Sketcher.Constraint("DistanceY", 12, 2, 15, 2, Q("46.2901 mm")))
sketch3.addConstraint(Sketcher.Constraint("DistanceX", 17, 2, 16, 2, Q("32.859502 mm")))
sketch3.addConstraint(Sketcher.Constraint("DistanceY", 17, 2, 11, 2, Q("5.208501 mm")))
sketch3.addConstraint(Sketcher.Constraint("DistanceX", 26, 2, 20, 2, Q("103.826898 mm")))
sketch3.addConstraint(Sketcher.Constraint("Distance", 0, Q("160.71624 mm")))
sketch3.addConstraint(Sketcher.Constraint("Distance", 2, Q("129.655479 mm")))
sketch3.addConstraint(Sketcher.Constraint("Distance", 12, Q("98.221949 mm")))
sketch3.addConstraint(Sketcher.Constraint("Distance", 13, Q("40.23337 mm")))
sketch3.addConstraint(Sketcher.Constraint("Distance", 14, Q("51.708408 mm")))
sketch3.addConstraint(Sketcher.Constraint("Distance", 17, Q("42.354411 mm")))
sketch3.addConstraint(Sketcher.Constraint("Distance", 21, Q("117.10537 mm")))
sketch3.addConstraint(Sketcher.Constraint("Distance", 24, Q("203.959469 mm")))
sketch3.addConstraint(Sketcher.Constraint("Distance", 26, Q("163.262889 mm")))
sketch3.addConstraint(Sketcher.Constraint("DistanceX", 16, 2, 16, 1, Q("78.571692 mm")))
sketch3.addConstraint(Sketcher.Constraint("DistanceX", 23, 1, 23, 2, Q("38.350463 mm")))
sketch3.addConstraint(Sketcher.Constraint("DistanceX", 29, 2, 29, 1, Q("28.061323 mm")))
sketch3.addConstraint(Sketcher.Constraint("DistanceY", 27, 2, 27, 1, Q("18.707536 mm")))
sketch3.addConstraint(Sketcher.Constraint("DistanceY", 4, 3, -1, 1, Q("153.74051 mm")))
sketch3.addConstraint(Sketcher.Constraint("DistanceX", 10, 3, -1, 1, Q("195.70727 mm")))
sketch3.addConstraint(Sketcher.Constraint("DistanceX", 0, 2, -1, 1, Q("26.549868 mm")))
sketch3.addConstraint(Sketcher.Constraint("DistanceX", 4, 1, -1, 1, Q("53.675812 mm")))
sketch3.addConstraint(Sketcher.Constraint("DistanceX", -1, 1, 7, 2, Q("297.090709 mm")))
sketch3.addConstraint(Sketcher.Constraint("DistanceY", 8, 2, -1, 1, Q("150.45692 mm")))
sketch3.addConstraint(Sketcher.Constraint("DistanceX", -1, 1, 12, 2, Q("238.161951 mm")))
sketch3.addConstraint(Sketcher.Constraint("DistanceX", -1, 1, 24, 2, Q("95.984571 mm")))
sketch3.addConstraint(Sketcher.Constraint("DistanceY", -1, 1, 24, 2, Q("226.500168 mm")))
sketch3.addConstraint(Sketcher.Constraint("DistanceY", -1, 1, 26, 2, Q("138.57469 mm")))
sketch3.addConstraint(Sketcher.Constraint("DistanceX", 28, 2, -1, 1, Q("39.64515 mm")))
sketch3.addConstraint(Sketcher.Constraint("DistanceX", 30, 2, -1, 1, Q("184.628651 mm")))
sketch3.addConstraint(Sketcher.Constraint("DistanceY", 10, 3, 0, 2, Q("386.43789 mm")))
sketch3.addConstraint(Sketcher.Constraint("DistanceX", 1, 2, 0, 2, Q("40.221229 mm")))
sketch3.addConstraint(Sketcher.Constraint("DistanceX", 4, 3, 5, 2, Q("86.94205 mm")))
sketch3.addConstraint(Sketcher.Constraint("DistanceX", 6, 2, 8, 2, Q("385.375521 mm")))
sketch3.addConstraint(Sketcher.Constraint("DistanceY", 18, 2, 20, 2, Q("25.255181 mm")))
pad3 = body3.newObject("PartDesign::Pad", "Pad002")
pad3.Profile = sketch3
pad3.setExpression("Length", "Params.pad3_length")

doc.recompute()
